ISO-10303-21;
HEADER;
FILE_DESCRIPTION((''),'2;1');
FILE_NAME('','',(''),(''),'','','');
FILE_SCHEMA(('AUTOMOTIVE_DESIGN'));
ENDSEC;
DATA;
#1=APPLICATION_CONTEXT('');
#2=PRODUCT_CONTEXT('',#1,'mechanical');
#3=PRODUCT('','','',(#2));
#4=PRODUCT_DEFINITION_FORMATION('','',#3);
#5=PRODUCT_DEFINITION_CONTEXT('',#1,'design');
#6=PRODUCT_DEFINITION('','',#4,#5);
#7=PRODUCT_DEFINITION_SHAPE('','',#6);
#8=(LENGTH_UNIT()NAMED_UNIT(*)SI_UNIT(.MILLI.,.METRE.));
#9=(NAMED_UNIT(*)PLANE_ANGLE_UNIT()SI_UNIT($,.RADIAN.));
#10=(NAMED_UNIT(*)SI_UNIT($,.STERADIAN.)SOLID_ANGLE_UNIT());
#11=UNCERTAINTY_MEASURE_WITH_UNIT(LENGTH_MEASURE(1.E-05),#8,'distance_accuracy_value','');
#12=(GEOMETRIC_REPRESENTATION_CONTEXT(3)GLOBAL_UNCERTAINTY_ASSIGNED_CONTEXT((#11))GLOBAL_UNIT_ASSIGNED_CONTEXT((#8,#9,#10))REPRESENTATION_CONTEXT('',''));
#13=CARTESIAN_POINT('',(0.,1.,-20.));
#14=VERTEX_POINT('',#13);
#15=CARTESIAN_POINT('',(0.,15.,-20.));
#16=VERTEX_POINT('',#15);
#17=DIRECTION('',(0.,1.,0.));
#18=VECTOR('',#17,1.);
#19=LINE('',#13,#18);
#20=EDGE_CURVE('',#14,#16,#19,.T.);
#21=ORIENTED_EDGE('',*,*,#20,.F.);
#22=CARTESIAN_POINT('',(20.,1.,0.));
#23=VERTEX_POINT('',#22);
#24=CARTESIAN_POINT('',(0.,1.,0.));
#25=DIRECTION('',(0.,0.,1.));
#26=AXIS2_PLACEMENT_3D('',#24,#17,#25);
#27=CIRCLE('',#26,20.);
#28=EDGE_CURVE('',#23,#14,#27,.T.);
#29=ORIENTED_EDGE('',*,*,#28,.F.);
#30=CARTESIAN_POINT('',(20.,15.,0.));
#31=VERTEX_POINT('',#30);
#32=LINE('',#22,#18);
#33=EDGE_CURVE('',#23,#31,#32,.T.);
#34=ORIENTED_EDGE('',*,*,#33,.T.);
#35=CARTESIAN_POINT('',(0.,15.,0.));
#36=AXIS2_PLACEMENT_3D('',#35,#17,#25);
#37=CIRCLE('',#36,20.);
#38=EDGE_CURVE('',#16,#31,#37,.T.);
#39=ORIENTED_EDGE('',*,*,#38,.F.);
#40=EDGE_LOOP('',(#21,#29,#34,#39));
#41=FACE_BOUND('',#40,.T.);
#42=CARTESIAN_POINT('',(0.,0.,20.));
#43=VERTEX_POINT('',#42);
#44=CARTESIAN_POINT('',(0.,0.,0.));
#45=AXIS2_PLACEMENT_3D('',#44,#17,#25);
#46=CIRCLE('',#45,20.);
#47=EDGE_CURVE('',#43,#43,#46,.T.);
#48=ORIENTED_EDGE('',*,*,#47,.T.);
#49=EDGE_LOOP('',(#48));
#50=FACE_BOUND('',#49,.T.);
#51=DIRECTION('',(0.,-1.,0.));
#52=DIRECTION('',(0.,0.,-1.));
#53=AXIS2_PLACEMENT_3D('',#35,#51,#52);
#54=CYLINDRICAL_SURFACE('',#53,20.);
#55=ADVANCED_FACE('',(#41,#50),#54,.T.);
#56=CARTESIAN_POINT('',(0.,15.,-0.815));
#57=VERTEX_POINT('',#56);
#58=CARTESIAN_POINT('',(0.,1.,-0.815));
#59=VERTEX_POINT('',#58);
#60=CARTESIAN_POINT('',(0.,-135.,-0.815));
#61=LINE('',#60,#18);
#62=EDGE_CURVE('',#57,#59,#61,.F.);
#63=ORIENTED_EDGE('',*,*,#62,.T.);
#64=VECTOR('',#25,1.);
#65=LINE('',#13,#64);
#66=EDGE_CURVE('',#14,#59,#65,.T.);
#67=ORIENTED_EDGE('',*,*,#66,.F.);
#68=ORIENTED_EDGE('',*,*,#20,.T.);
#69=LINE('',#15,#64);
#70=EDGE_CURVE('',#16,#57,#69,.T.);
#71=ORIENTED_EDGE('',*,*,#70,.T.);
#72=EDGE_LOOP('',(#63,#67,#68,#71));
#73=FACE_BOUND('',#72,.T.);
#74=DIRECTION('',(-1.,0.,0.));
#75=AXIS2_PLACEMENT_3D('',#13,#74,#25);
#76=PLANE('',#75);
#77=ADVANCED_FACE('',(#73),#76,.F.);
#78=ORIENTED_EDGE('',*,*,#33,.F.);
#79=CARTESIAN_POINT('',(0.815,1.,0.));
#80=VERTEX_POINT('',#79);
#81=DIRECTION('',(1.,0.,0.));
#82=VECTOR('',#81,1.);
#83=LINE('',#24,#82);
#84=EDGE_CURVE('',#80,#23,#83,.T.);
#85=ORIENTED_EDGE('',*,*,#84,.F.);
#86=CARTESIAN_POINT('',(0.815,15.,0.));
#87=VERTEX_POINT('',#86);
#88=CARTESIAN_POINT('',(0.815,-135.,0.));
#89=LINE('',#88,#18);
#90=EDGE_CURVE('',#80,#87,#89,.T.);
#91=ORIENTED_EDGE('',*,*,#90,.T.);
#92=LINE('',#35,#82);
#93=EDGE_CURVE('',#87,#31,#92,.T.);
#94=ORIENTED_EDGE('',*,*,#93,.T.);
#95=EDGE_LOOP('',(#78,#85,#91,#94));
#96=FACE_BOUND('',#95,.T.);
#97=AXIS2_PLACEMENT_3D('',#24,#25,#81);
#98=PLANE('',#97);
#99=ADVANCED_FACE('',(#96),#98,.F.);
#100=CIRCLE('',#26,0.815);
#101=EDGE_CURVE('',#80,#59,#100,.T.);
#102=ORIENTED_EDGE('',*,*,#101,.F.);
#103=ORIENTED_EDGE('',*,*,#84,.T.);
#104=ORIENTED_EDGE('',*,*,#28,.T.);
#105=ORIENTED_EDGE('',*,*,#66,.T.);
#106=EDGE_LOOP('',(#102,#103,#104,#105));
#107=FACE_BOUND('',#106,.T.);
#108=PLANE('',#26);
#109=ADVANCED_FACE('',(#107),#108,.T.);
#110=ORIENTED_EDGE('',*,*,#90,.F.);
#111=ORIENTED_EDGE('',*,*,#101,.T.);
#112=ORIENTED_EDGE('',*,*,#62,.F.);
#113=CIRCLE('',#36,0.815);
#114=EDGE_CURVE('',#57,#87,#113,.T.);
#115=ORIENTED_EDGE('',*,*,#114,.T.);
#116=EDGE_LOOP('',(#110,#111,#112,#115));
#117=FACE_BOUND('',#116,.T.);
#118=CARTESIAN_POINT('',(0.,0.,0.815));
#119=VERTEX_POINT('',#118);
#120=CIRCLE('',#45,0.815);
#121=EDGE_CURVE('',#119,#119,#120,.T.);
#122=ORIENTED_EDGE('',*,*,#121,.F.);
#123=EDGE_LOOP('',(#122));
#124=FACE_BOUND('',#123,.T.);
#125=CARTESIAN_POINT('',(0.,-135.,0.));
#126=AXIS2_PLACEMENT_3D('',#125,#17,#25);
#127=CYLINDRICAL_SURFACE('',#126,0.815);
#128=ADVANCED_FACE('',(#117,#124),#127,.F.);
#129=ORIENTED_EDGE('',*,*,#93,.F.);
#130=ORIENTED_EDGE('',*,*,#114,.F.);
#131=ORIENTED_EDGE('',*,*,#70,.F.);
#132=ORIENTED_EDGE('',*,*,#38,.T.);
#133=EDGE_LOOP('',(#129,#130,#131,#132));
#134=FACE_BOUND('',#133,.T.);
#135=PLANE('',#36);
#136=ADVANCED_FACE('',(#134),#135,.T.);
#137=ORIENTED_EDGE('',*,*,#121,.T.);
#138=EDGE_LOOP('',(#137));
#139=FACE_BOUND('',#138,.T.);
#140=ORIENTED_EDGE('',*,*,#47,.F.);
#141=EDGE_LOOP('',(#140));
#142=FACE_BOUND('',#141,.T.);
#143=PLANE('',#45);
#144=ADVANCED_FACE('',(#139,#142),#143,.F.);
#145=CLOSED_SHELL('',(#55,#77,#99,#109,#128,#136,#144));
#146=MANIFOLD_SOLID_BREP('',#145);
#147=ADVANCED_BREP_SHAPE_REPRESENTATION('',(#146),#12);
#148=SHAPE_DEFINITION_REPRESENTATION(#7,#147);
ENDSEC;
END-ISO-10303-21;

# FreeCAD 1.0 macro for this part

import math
import FreeCAD as App
import Part
import Sketcher
from FreeCAD import Vector
Q = App.Units.Quantity

doc = App.newDocument("Part")
params = doc.addObject("Spreadsheet::Sheet", "Params")
for row, (alias, value) in enumerate([
    ("sketch1_diameter", "40 mm"),
    ("pad1_length", "15 mm"),
    ("sketch2_radius", "20 mm"),
    ("pocket1_length", "14 mm"),
    ("sketch3_diameter", "1.63 mm"),
    ("pocket2_length", "150 mm"),
], start=1):
    params.set(f"A{row}", alias)
    params.set(f"B{row}", "=" + value)
    params.setAlias(f"B{row}", alias)

body = doc.addObject("PartDesign::Body", "Body")

# Sketch on XZ plane
sketch1 = body.newObject("Sketcher::SketchObject", "Sketch")
sketch1.AttachmentSupport = (doc.getObject("XZ_Plane"), [""])
sketch1.MapMode = "FlatFace"
sketch1.addGeometry(Part.Circle(Vector(0, 0, 0), Vector(0, 0, 1), 20), False)
sketch1.addConstraint([
    Sketcher.Constraint("Coincident", 0, 3, -1, 1),
    Sketcher.Constraint("Diameter", 0, Q("40 mm")),
])
sketch1.setExpression("Constraints[1]", "Params.sketch1_diameter")
pad1 = body.newObject("PartDesign::Pad", "Pad")
pad1.Profile = sketch1
pad1.setExpression("Length", "Params.pad1_length")
pad1.Reversed = True

# Sketch on XZ plane
sketch2 = body.newObject("Sketcher::SketchObject", "Sketch001")
sketch2.AttachmentSupport = (doc.getObject("XZ_Plane"), [""])
sketch2.MapMode = "FlatFace"
sketch2.AttachmentOffset = App.Placement(Vector(0, 0, -1), App.Rotation())
sketch2.addGeometry([
    Part.LineSegment(Vector(0, -20, 0), Vector(0, 0, 0)),
    Part.LineSegment(Vector(0, 0, 0), Vector(20, 0, 0)),
    Part.ArcOfCircle(Part.Circle(Vector(0, 0, 0), Vector(0, 0, 1), 20), math.radians(-90), math.radians(0)),
], False)
sketch2.addConstraint([
    Sketcher.Constraint("Coincident", 0, 2, 1, 1),
    Sketcher.Constraint("Coincident", 1, 2, 2, 2),
    Sketcher.Constraint("Coincident", 2, 1, 0, 1),
    Sketcher.Constraint("Vertical", 0),
    Sketcher.Constraint("Horizontal", 1),
    Sketcher.Constraint("Coincident", 2, 3, -1, 1),
    Sketcher.Constraint("Coincident", 0, 2, -1, 1),
    Sketcher.Constraint("Radius", 2, Q("20 mm")),
])
sketch2.setExpression("Constraints[7]", "Params.sketch2_radius")
pocket1 = body.newObject("PartDesign::Pocket", "Pocket")
pocket1.Profile = sketch2
pocket1.setExpression("Length", "Params.pocket1_length")

# Sketch on XZ plane
sketch3 = body.newObject("Sketcher::SketchObject", "Sketch002")
sketch3.AttachmentSupport = (doc.getObject("XZ_Plane"), [""])
sketch3.MapMode = "FlatFace"
sketch3.AttachmentOffset = App.Placement(Vector(0, 0, -15), App.Rotation())
sketch3.addGeometry(Part.Circle(Vector(0, 0, 0), Vector(0, 0, 1), 0.815), False)
sketch3.addConstraint([
    Sketcher.Constraint("Coincident", 0, 3, -1, 1),
    Sketcher.Constraint("Diameter", 0, Q("1.63 mm")),
])
sketch3.setExpression("Constraints[1]", "Params.sketch3_diameter")
pocket2 = body.newObject("PartDesign::Pocket", "Pocket001")
pocket2.Profile = sketch3
pocket2.setExpression("Length", "Params.pocket2_length")
pocket2.Reversed = True

doc.recompute()
